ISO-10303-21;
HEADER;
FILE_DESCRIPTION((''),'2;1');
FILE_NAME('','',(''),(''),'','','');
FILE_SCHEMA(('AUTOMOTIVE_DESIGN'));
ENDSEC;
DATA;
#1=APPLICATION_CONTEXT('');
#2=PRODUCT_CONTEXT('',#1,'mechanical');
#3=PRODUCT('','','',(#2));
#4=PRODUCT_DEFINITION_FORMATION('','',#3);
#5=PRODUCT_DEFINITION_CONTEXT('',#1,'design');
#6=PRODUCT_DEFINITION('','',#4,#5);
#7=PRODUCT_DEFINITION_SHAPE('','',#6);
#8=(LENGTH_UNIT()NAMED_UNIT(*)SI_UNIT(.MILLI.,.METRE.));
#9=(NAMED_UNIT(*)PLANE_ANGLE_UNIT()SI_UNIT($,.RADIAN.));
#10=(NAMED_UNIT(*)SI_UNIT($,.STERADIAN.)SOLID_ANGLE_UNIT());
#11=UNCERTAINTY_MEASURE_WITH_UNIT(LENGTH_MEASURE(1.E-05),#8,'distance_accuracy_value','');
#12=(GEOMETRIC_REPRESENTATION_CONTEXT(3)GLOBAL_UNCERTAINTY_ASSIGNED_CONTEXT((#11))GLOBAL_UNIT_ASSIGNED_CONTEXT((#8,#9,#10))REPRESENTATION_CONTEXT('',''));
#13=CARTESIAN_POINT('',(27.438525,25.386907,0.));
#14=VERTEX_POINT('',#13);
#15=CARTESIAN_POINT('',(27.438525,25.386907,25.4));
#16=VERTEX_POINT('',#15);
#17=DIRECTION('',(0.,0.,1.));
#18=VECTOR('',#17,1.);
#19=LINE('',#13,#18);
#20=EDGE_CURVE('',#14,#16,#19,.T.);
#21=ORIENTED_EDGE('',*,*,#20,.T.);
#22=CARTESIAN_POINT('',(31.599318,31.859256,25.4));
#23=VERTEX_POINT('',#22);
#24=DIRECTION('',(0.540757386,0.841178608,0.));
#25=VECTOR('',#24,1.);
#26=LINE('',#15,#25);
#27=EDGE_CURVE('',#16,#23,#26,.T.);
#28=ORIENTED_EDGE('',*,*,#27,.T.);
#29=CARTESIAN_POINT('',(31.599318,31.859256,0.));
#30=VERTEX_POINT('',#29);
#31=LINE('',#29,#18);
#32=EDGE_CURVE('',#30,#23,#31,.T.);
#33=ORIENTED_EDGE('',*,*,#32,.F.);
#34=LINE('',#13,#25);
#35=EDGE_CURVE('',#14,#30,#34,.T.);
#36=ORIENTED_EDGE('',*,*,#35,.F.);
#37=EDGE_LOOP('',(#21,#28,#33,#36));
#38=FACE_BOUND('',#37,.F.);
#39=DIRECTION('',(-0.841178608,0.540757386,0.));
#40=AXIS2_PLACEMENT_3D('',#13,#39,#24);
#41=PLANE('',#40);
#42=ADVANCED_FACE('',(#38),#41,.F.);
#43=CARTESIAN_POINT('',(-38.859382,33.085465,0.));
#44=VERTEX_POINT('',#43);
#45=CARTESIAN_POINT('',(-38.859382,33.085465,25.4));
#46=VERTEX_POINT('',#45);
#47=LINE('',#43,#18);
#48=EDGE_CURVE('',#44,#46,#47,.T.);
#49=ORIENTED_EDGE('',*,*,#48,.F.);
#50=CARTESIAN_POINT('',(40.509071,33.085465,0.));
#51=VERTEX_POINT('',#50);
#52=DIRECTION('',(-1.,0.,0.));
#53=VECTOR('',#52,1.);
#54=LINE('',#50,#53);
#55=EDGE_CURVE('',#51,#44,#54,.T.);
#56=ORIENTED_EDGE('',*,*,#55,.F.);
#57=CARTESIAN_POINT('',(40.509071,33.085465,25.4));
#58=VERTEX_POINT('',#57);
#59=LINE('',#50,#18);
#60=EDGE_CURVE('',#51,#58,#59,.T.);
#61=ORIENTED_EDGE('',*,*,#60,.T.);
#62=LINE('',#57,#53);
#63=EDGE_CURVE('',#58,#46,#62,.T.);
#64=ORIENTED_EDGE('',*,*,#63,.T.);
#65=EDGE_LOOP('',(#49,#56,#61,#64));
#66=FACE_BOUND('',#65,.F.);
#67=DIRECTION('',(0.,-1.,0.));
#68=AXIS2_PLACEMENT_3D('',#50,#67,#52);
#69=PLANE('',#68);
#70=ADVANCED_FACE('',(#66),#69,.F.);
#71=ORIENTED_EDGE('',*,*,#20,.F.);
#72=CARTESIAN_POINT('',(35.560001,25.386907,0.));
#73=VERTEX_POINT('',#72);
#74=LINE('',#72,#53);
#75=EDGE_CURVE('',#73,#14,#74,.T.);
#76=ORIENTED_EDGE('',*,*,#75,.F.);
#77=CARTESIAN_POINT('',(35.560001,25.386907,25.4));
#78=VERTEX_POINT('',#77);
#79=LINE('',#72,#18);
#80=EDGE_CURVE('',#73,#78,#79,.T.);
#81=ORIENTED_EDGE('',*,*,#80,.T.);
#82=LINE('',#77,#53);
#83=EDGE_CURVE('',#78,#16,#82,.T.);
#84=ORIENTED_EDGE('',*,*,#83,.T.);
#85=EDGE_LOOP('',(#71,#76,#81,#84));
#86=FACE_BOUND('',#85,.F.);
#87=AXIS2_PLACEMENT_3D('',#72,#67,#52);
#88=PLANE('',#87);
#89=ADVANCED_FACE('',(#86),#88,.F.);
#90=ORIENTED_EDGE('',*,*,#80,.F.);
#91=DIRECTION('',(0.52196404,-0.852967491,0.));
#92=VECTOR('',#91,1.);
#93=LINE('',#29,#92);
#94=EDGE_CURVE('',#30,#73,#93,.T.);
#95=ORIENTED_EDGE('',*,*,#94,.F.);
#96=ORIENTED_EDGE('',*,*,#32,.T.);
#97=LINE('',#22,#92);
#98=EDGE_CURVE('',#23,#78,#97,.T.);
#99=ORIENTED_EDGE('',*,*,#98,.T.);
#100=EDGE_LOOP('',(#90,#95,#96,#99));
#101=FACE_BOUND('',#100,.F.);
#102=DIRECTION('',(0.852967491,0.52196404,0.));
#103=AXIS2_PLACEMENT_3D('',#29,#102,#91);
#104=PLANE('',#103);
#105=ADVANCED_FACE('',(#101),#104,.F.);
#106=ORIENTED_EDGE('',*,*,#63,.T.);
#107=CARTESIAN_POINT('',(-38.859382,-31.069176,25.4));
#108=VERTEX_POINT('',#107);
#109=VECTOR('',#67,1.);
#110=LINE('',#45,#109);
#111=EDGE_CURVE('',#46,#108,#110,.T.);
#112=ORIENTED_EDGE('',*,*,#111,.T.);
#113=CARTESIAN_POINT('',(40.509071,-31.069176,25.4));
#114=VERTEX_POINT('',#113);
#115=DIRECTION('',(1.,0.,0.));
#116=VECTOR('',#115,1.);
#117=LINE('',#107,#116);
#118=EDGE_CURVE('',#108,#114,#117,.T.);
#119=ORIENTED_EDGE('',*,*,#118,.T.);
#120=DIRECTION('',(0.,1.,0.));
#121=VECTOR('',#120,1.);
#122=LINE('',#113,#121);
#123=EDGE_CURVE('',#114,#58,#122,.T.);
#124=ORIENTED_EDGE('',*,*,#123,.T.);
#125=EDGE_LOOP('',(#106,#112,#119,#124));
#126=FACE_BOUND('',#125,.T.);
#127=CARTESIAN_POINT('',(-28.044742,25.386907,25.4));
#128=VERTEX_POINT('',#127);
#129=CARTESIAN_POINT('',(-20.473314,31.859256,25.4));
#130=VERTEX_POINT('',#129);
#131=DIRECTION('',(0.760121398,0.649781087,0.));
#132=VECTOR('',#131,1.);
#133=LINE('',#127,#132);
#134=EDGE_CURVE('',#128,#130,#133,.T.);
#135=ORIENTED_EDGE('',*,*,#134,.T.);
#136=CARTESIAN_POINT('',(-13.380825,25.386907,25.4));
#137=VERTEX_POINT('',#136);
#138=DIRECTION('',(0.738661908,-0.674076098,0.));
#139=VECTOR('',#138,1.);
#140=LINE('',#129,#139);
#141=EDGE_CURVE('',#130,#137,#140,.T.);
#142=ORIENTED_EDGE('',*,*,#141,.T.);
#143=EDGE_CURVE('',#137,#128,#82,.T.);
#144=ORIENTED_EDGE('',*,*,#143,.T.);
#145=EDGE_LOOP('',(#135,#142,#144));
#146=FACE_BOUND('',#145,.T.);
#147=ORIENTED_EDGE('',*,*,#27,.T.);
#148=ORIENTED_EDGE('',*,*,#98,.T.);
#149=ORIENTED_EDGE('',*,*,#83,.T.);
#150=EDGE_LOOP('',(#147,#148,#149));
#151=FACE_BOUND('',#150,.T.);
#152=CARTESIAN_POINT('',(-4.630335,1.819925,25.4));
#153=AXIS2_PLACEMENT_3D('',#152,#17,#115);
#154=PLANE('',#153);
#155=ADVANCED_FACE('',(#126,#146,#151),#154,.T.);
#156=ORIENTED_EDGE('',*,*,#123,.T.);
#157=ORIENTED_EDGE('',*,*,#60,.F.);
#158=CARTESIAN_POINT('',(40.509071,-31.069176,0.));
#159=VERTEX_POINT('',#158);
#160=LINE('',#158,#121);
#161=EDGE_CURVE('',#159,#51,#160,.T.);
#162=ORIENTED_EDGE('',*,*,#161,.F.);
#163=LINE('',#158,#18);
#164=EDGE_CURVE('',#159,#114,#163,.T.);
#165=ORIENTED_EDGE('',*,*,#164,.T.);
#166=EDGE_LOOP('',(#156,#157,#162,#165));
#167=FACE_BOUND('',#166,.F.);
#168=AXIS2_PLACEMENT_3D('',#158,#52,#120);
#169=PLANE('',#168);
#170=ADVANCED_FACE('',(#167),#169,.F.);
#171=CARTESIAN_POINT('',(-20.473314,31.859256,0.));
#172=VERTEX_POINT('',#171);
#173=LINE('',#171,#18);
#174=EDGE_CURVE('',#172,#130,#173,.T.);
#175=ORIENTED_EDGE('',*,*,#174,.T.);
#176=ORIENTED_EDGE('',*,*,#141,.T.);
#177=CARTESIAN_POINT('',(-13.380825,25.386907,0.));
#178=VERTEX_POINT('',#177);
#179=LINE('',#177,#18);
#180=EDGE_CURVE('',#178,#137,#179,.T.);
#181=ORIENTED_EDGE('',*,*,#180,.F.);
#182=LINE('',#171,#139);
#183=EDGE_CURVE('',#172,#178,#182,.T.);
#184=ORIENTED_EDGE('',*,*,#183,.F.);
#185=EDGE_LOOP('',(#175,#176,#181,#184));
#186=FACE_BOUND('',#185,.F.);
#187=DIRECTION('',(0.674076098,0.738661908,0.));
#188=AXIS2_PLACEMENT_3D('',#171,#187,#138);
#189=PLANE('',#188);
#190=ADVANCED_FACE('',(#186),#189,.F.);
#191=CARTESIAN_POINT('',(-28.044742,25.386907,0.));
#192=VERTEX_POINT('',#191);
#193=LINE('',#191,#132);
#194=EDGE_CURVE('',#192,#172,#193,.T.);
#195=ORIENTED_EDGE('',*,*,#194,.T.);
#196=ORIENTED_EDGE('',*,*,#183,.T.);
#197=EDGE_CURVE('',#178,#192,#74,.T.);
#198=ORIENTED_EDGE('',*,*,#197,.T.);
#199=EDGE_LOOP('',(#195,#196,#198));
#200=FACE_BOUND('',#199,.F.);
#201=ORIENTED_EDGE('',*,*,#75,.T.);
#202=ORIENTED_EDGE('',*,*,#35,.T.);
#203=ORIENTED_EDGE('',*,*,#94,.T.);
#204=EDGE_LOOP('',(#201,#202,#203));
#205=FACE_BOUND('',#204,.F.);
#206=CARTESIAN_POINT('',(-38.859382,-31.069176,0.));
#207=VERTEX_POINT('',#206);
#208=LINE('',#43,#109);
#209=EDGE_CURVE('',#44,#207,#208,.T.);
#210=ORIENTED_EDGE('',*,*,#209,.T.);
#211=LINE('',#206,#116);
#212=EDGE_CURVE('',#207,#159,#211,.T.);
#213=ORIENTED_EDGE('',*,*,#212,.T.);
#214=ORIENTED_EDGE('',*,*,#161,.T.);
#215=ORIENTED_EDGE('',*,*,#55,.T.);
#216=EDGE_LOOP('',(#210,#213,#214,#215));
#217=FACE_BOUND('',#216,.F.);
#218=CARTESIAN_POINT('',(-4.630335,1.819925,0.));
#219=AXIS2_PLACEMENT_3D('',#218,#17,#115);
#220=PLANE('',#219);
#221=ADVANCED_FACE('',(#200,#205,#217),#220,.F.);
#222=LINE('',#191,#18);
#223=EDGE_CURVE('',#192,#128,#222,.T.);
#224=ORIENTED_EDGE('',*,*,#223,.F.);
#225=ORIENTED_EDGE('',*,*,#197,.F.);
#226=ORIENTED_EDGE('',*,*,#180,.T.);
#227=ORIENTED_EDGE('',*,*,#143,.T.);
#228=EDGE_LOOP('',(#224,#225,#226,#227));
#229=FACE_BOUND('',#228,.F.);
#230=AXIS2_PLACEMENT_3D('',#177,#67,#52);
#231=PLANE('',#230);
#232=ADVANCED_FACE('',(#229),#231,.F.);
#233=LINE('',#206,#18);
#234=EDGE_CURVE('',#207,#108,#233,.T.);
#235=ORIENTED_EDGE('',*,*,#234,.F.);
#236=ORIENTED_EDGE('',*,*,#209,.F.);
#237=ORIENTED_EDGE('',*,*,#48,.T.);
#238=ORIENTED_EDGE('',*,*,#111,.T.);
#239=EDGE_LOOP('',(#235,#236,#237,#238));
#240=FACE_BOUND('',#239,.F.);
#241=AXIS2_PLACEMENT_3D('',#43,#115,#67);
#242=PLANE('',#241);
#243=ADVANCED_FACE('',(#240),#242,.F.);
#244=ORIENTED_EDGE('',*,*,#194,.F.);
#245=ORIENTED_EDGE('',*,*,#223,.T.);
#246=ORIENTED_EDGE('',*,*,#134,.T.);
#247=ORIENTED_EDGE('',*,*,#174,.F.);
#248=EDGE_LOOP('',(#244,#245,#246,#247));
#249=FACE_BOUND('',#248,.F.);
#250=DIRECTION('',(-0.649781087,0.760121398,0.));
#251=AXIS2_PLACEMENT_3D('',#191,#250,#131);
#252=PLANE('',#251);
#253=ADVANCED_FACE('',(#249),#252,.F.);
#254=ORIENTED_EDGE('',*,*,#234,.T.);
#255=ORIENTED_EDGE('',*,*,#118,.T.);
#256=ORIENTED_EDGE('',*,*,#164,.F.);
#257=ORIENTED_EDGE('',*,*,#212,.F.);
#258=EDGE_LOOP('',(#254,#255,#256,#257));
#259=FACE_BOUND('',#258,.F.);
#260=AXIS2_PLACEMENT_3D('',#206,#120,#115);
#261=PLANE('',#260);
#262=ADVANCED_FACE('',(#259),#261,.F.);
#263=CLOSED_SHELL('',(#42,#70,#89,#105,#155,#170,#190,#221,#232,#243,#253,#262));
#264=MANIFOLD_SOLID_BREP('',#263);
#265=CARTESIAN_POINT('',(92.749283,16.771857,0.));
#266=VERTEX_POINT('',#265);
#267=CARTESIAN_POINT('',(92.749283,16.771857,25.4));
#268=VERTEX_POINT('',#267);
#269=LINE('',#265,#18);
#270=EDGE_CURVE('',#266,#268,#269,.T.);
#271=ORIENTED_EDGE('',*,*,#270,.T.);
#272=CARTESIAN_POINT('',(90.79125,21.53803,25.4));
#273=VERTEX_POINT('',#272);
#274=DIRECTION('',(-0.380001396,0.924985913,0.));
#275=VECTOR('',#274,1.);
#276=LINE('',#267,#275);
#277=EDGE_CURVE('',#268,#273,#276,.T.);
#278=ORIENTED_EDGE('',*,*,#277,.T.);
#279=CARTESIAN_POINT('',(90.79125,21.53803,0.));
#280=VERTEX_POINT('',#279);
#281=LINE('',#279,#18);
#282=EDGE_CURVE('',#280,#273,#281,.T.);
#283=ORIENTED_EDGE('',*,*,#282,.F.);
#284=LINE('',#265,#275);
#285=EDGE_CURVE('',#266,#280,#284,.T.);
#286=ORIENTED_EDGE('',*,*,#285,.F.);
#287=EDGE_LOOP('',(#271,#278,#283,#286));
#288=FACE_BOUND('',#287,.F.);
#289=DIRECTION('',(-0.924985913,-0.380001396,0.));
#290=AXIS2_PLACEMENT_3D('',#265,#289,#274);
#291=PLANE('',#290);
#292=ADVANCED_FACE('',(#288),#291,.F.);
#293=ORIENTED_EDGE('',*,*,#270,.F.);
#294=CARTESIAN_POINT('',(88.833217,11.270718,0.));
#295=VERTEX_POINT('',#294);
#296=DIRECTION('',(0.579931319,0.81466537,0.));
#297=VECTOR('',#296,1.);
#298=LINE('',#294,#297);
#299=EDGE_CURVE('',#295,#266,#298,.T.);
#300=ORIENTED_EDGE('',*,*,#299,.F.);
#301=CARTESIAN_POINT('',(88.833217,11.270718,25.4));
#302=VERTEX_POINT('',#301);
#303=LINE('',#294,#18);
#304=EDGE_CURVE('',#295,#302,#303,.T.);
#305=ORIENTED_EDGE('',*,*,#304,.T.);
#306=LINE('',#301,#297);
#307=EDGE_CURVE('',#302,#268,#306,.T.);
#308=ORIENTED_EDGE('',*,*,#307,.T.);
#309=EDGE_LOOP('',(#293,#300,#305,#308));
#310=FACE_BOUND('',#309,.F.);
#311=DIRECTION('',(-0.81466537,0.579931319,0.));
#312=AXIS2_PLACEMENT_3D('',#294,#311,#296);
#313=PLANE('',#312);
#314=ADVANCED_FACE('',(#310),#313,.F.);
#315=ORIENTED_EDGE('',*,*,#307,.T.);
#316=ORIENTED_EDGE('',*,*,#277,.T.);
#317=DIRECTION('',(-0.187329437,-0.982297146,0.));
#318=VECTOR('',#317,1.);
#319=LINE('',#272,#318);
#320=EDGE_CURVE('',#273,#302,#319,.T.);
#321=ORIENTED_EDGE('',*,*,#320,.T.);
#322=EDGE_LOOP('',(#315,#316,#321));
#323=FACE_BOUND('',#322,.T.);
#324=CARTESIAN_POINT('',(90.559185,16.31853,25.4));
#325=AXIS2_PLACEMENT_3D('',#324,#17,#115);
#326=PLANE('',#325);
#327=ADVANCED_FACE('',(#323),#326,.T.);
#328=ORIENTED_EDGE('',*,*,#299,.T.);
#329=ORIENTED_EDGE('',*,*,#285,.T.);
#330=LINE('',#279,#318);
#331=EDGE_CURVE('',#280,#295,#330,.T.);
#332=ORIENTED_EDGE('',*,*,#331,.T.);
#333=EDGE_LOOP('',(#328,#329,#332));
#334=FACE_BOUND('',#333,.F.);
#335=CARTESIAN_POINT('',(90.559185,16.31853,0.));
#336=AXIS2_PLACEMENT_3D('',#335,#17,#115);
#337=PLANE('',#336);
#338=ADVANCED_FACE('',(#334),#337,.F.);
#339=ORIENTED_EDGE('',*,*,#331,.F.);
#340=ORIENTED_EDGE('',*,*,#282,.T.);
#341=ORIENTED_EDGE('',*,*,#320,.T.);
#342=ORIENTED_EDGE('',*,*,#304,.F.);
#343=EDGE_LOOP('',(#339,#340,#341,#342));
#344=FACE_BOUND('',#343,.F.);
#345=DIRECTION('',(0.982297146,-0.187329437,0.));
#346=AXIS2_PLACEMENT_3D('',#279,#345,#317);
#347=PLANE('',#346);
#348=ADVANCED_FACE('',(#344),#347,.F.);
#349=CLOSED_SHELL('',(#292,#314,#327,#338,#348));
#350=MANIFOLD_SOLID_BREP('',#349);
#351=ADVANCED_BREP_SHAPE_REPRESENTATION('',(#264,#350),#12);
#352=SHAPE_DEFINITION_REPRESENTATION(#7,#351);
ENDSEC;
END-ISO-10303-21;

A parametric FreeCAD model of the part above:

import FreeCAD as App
import Part
import Sketcher
from FreeCAD import Vector
Q = App.Units.Quantity

doc = App.newDocument("Part")
body = doc.addObject("PartDesign::Body", "Body")

sketch1 = body.newObject("Sketcher::SketchObject", "Sketch")
sketch1.AttachmentSupport = (doc.getObject("XY_Plane"), [""])
sketch1.MapMode = "FlatFace"
sketch1.addGeometry(Part.LineSegment(Vector(-39, 33, 0), Vector(-39, -31, 0)), False)
sketch1.addGeometry(Part.LineSegment(Vector(-39, -31, 0), Vector(41, -31, 0)), False)
sketch1.addGeometry(Part.LineSegment(Vector(41, -31, 0), Vector(41, 33, 0)), False)
sketch1.addGeometry(Part.LineSegment(Vector(41, 33, 0), Vector(-39, 33, 0)), False)
sketch1.addGeometry(Part.LineSegment(Vector(36, 25, 0), Vector(27, 25, 0)), False)
sketch1.addGeometry(Part.LineSegment(Vector(27, 25, 0), Vector(32, 32, 0)), False)
sketch1.addGeometry(Part.LineSegment(Vector(32, 32, 0), Vector(36, 25, 0)), False)
sketch1.addGeometry(Part.LineSegment(Vector(-13, 25, 0), Vector(-28, 25, 0)), False)
sketch1.addGeometry(Part.LineSegment(Vector(-28, 25, 0), Vector(-20, 32, 0)), False)
sketch1.addGeometry(Part.LineSegment(Vector(-20, 32, 0), Vector(-13, 25, 0)), False)
sketch1.addConstraint(Sketcher.Constraint("Coincident", 0, 2, 1, 1))
sketch1.addConstraint(Sketcher.Constraint("Coincident", 1, 2, 2, 1))
sketch1.addConstraint(Sketcher.Constraint("Coincident", 2, 2, 3, 1))
sketch1.addConstraint(Sketcher.Constraint("Coincident", 3, 2, 0, 1))
sketch1.addConstraint(Sketcher.Constraint("Coincident", 4, 2, 5, 1))
sketch1.addConstraint(Sketcher.Constraint("Coincident", 5, 2, 6, 1))
sketch1.addConstraint(Sketcher.Constraint("Coincident", 6, 2, 4, 1))
sketch1.addConstraint(Sketcher.Constraint("Coincident", 7, 2, 8, 1))
sketch1.addConstraint(Sketcher.Constraint("Coincident", 8, 2, 9, 1))
sketch1.addConstraint(Sketcher.Constraint("Coincident", 9, 2, 7, 1))
sketch1.addConstraint(Sketcher.Constraint("Vertical", 0))
sketch1.addConstraint(Sketcher.Constraint("Horizontal", 1))
sketch1.addConstraint(Sketcher.Constraint("Vertical", 2))
sketch1.addConstraint(Sketcher.Constraint("Horizontal", 3))
sketch1.addConstraint(Sketcher.Constraint("Horizontal", 4))
sketch1.addConstraint(Sketcher.Constraint("Horizontal", 7))
sketch1.addConstraint(Sketcher.Constraint("Horizontal", 6, 2, 7, 2))
sketch1.addConstraint(Sketcher.Constraint("Horizontal", 5, 2, 8, 2))
sketch1.addConstraint(Sketcher.Constraint("DistanceX", -1, 1, 6, 2, Q("1.4 in")))
sketch1.addConstraint(Sketcher.Constraint("DistanceY", 0, 2, 0, 1, 64.154642))
sketch1.addConstraint(Sketcher.Constraint("DistanceX", 3, 2, 5, 2, 70.458701))
sketch1.addConstraint(Sketcher.Constraint("Distance", 5, 7.694381))
sketch1.addConstraint(Sketcher.Constraint("DistanceX", 1, 1, 1, 2, 79.368453))
sketch1.addConstraint(Sketcher.Constraint("DistanceX", 4, 2, 4, 1, 8.121476))
sketch1.addConstraint(Sketcher.Constraint("DistanceX", 7, 2, 7, 1, 14.663917))
sketch1.addConstraint(Sketcher.Constraint("DistanceX", -1, 1, 1, 2, 40.509071))
sketch1.addConstraint(Sketcher.Constraint("DistanceX", 7, 2, -1, 1, 28.044742))
sketch1.addConstraint(Sketcher.Constraint("DistanceY", 4, 2, 2, 2, 7.698558))
sketch1.addConstraint(Sketcher.Constraint("DistanceX", 3, 2, 8, 2, 18.386069))
sketch1.addConstraint(Sketcher.Constraint("DistanceY", 0, 2, -1, 1, 31.069176))
pad1 = body.newObject("PartDesign::Pad", "Pad")
pad1.Profile = sketch1
pad1.Length = Q("1 in")
body2 = doc.addObject("PartDesign::Body", "Body001")

sketch2 = body2.newObject("Sketcher::SketchObject", "Sketch001")
sketch2.AttachmentSupport = (doc.getObject("XY_Plane001"), [""])
sketch2.MapMode = "FlatFace"
sketch2.addGeometry(Part.LineSegment(Vector(89, 11, 0), Vector(93, 17, 0)), False)
sketch2.addGeometry(Part.LineSegment(Vector(93, 17, 0), Vector(91, 22, 0)), False)
sketch2.addGeometry(Part.LineSegment(Vector(91, 22, 0), Vector(89, 11, 0)), False)
sketch2.addConstraint(Sketcher.Constraint("Coincident", 0, 2, 1, 1))
sketch2.addConstraint(Sketcher.Constraint("Coincident", 1, 2, 2, 1))
sketch2.addConstraint(Sketcher.Constraint("Coincident", 2, 2, 0, 1))
sketch2.addConstraint(Sketcher.Constraint("Distance", 1, 5.152699))
sketch2.addConstraint(Sketcher.Constraint("Distance", 2, 10.452349))
sketch2.addConstraint(Sketcher.Constraint("DistanceX", -1, 1, 1, 2, 90.79125))
sketch2.addConstraint(Sketcher.Constraint("DistanceY", -1, 1, 1, 2, 21.53803))
sketch2.addConstraint(Sketcher.Constraint("DistanceY", 2, 2, 0, 2, 5.501139))
sketch2.addConstraint(Sketcher.Constraint("Distance", 0, 6.752636))
pad2 = body2.newObject("PartDesign::Pad", "Pad001")
pad2.Profile = sketch2
pad2.Length = Q("1 in")

doc.recompute()
